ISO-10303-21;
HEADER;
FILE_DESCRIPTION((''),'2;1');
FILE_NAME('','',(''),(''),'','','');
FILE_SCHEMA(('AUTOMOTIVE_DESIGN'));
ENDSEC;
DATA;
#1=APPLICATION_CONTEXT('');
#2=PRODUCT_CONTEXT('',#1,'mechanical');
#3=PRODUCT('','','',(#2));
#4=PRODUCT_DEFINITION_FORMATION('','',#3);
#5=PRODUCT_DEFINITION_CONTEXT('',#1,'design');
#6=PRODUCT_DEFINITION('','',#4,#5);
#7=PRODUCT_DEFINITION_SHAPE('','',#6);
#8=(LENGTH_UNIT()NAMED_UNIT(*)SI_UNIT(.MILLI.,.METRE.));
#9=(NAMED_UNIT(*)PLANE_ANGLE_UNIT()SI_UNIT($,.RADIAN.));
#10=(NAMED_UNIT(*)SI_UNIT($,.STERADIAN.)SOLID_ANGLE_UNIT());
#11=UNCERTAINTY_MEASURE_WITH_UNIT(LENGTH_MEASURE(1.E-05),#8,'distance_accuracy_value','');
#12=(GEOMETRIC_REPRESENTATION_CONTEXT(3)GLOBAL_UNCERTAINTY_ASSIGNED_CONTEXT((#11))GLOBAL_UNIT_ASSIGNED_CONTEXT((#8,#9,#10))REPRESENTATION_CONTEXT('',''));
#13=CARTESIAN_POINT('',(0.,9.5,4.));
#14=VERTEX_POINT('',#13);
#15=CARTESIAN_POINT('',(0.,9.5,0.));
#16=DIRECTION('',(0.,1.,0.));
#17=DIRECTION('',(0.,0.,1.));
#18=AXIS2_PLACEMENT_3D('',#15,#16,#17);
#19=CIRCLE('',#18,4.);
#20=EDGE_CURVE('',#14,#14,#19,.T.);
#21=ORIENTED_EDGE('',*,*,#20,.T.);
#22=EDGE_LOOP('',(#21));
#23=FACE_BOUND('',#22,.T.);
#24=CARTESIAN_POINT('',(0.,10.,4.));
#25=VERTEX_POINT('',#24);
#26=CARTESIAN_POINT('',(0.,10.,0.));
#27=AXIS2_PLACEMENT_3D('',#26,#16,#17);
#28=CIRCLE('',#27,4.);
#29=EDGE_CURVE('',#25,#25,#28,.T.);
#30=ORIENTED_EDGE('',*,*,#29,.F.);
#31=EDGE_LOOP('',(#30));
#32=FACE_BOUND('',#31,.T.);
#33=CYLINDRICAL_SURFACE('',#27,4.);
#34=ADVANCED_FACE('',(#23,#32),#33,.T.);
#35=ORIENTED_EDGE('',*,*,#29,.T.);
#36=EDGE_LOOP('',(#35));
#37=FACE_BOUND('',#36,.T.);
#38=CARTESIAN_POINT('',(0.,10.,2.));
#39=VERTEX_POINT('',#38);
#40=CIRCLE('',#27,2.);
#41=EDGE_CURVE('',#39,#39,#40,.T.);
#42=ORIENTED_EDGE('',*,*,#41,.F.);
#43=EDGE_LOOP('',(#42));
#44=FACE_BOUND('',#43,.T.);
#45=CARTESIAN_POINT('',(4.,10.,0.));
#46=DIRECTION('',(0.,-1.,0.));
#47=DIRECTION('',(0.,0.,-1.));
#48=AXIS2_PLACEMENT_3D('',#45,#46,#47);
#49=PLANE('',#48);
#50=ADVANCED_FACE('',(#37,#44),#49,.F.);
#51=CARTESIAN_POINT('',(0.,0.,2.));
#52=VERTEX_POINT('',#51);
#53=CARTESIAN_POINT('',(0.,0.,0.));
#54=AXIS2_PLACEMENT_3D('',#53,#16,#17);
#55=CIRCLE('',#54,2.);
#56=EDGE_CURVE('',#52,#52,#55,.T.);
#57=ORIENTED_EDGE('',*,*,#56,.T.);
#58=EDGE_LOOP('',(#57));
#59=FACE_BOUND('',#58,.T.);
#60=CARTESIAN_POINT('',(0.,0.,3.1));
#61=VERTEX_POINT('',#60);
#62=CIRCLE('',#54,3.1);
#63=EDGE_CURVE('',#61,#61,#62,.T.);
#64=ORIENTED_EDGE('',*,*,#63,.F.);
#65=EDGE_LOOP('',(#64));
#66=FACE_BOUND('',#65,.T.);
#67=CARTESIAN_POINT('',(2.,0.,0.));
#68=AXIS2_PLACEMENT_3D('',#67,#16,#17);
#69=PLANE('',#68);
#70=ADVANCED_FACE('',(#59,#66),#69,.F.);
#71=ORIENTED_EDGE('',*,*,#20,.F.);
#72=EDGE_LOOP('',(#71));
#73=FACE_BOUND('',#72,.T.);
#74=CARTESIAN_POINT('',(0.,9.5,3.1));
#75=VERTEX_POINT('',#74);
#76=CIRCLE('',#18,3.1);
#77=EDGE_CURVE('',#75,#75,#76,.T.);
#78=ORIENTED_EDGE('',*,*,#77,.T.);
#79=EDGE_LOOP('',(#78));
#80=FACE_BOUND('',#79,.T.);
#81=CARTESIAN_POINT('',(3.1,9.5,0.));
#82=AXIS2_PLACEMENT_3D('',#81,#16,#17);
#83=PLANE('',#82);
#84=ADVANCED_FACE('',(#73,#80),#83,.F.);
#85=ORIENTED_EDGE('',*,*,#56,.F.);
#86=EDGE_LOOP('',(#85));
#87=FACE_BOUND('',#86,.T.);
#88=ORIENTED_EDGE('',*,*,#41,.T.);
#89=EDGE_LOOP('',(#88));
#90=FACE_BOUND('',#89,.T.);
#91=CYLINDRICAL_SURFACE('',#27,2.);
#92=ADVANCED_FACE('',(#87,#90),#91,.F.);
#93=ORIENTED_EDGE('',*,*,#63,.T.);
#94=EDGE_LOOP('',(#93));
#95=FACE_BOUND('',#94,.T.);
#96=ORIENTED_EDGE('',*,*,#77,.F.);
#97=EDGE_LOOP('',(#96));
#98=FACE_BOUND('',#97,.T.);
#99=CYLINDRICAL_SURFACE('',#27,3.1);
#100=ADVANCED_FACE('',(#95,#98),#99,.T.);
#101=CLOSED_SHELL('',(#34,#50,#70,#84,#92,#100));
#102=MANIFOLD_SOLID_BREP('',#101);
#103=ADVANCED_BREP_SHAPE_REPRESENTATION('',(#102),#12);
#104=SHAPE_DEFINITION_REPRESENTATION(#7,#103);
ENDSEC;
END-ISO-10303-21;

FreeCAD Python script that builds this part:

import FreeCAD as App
import Part
import Sketcher
from FreeCAD import Vector
Q = App.Units.Quantity


def add_polygon(sketch, points):
    """Adds a closed chain of lines whose ends are joined by coincident constraints."""
    first, n = sketch.GeometryCount, len(points)
    for a, b in zip(points, points[1:] + points[:1]):
        sketch.addGeometry(Part.LineSegment(App.Vector(*a, 0), App.Vector(*b, 0)), False)
    for i in range(n):
        sketch.addConstraint(Sketcher.Constraint("Coincident", first + i, 2, first + (i + 1) % n, 1))

doc = App.newDocument("Part")
body = doc.addObject("PartDesign::Body", "Body")

sketch1 = body.newObject("Sketcher::SketchObject", "Sketch")
sketch1.AttachmentSupport = (doc.getObject("XY_Plane"), [""])
sketch1.MapMode = "FlatFace"
add_polygon(sketch1, [(3.1, 0), (3.1, 9.5), (4, 9.5), (4, 10), (2, 10), (2, 0)])
sketch1.addConstraint(Sketcher.Constraint("Vertical", 0))
sketch1.addConstraint(Sketcher.Constraint("Horizontal", 1))
sketch1.addConstraint(Sketcher.Constraint("Vertical", 2))
sketch1.addConstraint(Sketcher.Constraint("Horizontal", 3))
sketch1.addConstraint(Sketcher.Constraint("Vertical", 4))
sketch1.addConstraint(Sketcher.Constraint("Horizontal", 5))
sketch1.addConstraint(Sketcher.Constraint("PointOnObject", 4, 2, -1))
sketch1.addConstraint(Sketcher.Constraint("DistanceX", 3, 2, 3, 1, Q("2 mm")))
sketch1.addConstraint(Sketcher.Constraint("DistanceY", 4, 2, 4, 1, Q("10 mm")))
sketch1.addConstraint(Sketcher.Constraint("DistanceX", 1, 1, 1, 2, Q("0.9 mm")))
sketch1.addConstraint(Sketcher.Constraint("DistanceY", 0, 1, 0, 2, Q("9.5 mm")))
sketch1.addConstraint(Sketcher.Constraint("DistanceX", -1, 1, 1, 2, Q("4 mm")))
revolution = body.newObject("PartDesign::Revolution", "Revolution")
revolution.Profile = sketch1
revolution.ReferenceAxis = (sketch1, ["V_Axis"])
revolution.Angle = 360

doc.recompute()
